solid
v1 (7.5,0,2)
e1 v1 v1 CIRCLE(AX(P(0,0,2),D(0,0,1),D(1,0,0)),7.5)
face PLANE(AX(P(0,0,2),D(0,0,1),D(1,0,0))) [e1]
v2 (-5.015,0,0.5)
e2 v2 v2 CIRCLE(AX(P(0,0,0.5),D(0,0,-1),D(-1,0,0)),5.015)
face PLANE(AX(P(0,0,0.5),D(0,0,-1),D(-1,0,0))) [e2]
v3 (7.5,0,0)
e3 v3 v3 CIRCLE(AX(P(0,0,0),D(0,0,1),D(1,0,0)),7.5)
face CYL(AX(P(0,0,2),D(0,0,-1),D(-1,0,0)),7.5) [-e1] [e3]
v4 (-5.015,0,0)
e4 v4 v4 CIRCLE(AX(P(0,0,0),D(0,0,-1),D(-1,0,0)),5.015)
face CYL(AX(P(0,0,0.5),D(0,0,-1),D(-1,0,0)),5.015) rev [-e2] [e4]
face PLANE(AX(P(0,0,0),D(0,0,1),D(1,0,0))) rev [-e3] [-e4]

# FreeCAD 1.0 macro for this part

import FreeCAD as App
import Part
import Sketcher

doc = App.newDocument("Part")
body = doc.addObject("PartDesign::Body", "Body")

sketch1 = body.newObject("Sketcher::SketchObject", "Sketch")
sketch1.AttachmentSupport = (doc.getObject("XY_Plane"), [""])
sketch1.MapMode = "FlatFace"
sketch1.addGeometry(Part.Circle(App.Vector(0, 0, 0), App.Vector(0, 0, 1), 8), False)
sketch1.addConstraint([
    Sketcher.Constraint("Coincident", 0, 3, -1, 1),
    Sketcher.Constraint("Diameter", 0, 15.0),
])
pad1 = body.newObject("PartDesign::Pad", "Pad")
pad1.Profile = sketch1
pad1.Length = 2

sketch2 = body.newObject("Sketcher::SketchObject", "Sketch001")
sketch2.AttachmentSupport = (doc.getObject("XY_Plane"), [""])
sketch2.MapMode = "FlatFace"
sketch2.addGeometry(Part.Circle(App.Vector(0, 0, 0), App.Vector(0, 0, 1), 5), False)
sketch2.addConstraint([
    Sketcher.Constraint("Coincident", 0, 3, -1, 1),
    Sketcher.Constraint("Diameter", 0, 10.03),
])
pocket1 = body.newObject("PartDesign::Pocket", "Pocket")
pocket1.Profile = sketch2
pocket1.Length = 0.5
pocket1.Reversed = True

doc.recompute()
